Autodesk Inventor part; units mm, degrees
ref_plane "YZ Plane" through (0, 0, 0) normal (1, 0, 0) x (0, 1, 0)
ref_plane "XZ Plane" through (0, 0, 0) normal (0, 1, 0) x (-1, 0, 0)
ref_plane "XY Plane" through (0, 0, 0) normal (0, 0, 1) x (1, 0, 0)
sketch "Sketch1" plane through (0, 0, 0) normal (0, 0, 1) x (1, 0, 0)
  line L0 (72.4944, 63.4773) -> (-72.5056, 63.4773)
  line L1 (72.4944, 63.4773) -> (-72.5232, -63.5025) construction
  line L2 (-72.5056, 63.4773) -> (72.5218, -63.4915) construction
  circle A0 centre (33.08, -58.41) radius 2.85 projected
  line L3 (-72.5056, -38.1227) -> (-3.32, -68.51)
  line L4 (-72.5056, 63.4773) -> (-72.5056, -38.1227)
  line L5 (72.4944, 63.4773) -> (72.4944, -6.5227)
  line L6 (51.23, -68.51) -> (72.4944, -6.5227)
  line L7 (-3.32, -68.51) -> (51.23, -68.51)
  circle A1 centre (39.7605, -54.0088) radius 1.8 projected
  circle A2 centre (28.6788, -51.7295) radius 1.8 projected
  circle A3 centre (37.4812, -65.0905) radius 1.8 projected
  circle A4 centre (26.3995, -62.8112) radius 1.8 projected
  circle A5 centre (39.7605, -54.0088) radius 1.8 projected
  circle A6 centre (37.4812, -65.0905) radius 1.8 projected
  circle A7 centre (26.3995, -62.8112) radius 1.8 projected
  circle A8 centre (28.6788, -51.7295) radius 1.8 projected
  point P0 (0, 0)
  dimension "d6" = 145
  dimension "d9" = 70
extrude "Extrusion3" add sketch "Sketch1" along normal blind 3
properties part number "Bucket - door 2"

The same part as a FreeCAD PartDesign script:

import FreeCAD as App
import Part
import Sketcher
from FreeCAD import Vector


def add_polygon(sketch, points):
    """Adds a closed chain of lines whose ends are joined by coincident constraints."""
    first, n = sketch.GeometryCount, len(points)
    for a, b in zip(points, points[1:] + points[:1]):
        sketch.addGeometry(Part.LineSegment(App.Vector(*a, 0), App.Vector(*b, 0)), False)
    for i in range(n):
        sketch.addConstraint(Sketcher.Constraint("Coincident", first + i, 2, first + (i + 1) % n, 1))

doc = App.newDocument("Part")
params = doc.addObject("Spreadsheet::Sheet", "Params")
for row, (alias, value) in enumerate([
    ("sketch1_width", "145 mm"),
    ("sketch1_height", "70 mm"),
    ("sketch1_diameter", "3.6 mm"),
    ("sketch1_diameter2", "5.7 mm"),
    ("sketch1_height2", "101.6 mm"),
    ("pad1_length", "3 mm"),
], start=1):
    params.set(f"A{row}", alias)
    params.set(f"B{row}", "=" + value)
    params.setAlias(f"B{row}", alias)

body = doc.addObject("PartDesign::Body", "Body")

# Sketch on XY plane
sketch1 = body.newObject("Sketcher::SketchObject", "Sketch")
sketch1.AttachmentSupport = (doc.getObject("XY_Plane"), [""])
sketch1.MapMode = "FlatFace"
add_polygon(sketch1, [(72.5, -6.5), (72.5, 63.5), (-72.5, 63.5), (-72.5, -38.1), (-3.3, -68.5), (51.2, -68.5)])  # lines 0-5
sketch1.addGeometry(Part.Circle(Vector(26.4, -62.8, 0), Vector(0, 0, 1), 1.8), False)  # 6
sketch1.addGeometry(Part.Circle(Vector(33.1, -58.4, 0), Vector(0, 0, 1), 2.9), False)  # 7
sketch1.addGeometry(Part.Circle(Vector(28.7, -51.7, 0), Vector(0, 0, 1), 1.8), False)  # 8
sketch1.addGeometry(Part.Circle(Vector(37.5, -65.1, 0), Vector(0, 0, 1), 1.8), False)  # 9
sketch1.addGeometry(Part.Circle(Vector(39.8, -54, 0), Vector(0, 0, 1), 1.8), False)  # 10
sketch1.addConstraint([
    Sketcher.Constraint("Vertical", 0),
    Sketcher.Constraint("Horizontal", 1),
    Sketcher.Constraint("Vertical", 2),
    Sketcher.Constraint("Horizontal", 4),
    Sketcher.Constraint("Equal", 6, 8),
    Sketcher.Constraint("Equal", 8, 9),
    Sketcher.Constraint("Equal", 9, 10),
    Sketcher.Constraint("DistanceX", 1, 2, 1, 1, 145.0),
    Sketcher.Constraint("DistanceY", 0, 1, 0, 2, 70.0),
    Sketcher.Constraint("Diameter", 6, 3.6),
    Sketcher.Constraint("Diameter", 7, 5.7),
    Sketcher.Constraint("DistanceY", 2, 2, 2, 1, 101.6),
    Sketcher.Constraint("DistanceX", 4, 1, 4, 2, 54.55),
    Sketcher.Constraint("DistanceX", 3, 2, 7, 3, 36.4),
    Sketcher.Constraint("DistanceY", 3, 2, 7, 3, 10.1),
    Sketcher.Constraint("DistanceX", -1, 1, 7, 3, 33.08),
    Sketcher.Constraint("DistanceY", 7, 3, -1, 1, 58.41),
    Sketcher.Constraint("DistanceY", 9, 3, 8, 3, 13.361),
    Sketcher.Constraint("DistanceX", 6, 3, 10, 3, 13.361),
    Sketcher.Constraint("DistanceX", 10, 3, 0, 2, 32.734),
    Sketcher.Constraint("DistanceY", 10, 3, 0, 2, 117.486),
    Sketcher.Constraint("Distance", 3, 75.5648),
    Sketcher.Constraint("Distance", 5, 65.5332),
    Sketcher.Constraint("DistanceY", 6, 3, -1, 1, 62.8112),
    Sketcher.Constraint("DistanceX", -1, 1, 8, 3, 28.6788),
    Sketcher.Constraint("DistanceY", 8, 3, -1, 1, 51.7295),
    Sketcher.Constraint("DistanceX", -1, 1, 9, 3, 37.4812),
])
sketch1.setExpression("Constraints[13]", "Params.sketch1_width")
sketch1.setExpression("Constraints[14]", "Params.sketch1_height")
sketch1.setExpression("Constraints[15]", "Params.sketch1_diameter")
sketch1.setExpression("Constraints[16]", "Params.sketch1_diameter2")
sketch1.setExpression("Constraints[17]", "Params.sketch1_height2")
pad1 = body.newObject("PartDesign::Pad", "Pad")
pad1.Profile = sketch1
pad1.setExpression("Length", "Params.pad1_length")

doc.recompute()
